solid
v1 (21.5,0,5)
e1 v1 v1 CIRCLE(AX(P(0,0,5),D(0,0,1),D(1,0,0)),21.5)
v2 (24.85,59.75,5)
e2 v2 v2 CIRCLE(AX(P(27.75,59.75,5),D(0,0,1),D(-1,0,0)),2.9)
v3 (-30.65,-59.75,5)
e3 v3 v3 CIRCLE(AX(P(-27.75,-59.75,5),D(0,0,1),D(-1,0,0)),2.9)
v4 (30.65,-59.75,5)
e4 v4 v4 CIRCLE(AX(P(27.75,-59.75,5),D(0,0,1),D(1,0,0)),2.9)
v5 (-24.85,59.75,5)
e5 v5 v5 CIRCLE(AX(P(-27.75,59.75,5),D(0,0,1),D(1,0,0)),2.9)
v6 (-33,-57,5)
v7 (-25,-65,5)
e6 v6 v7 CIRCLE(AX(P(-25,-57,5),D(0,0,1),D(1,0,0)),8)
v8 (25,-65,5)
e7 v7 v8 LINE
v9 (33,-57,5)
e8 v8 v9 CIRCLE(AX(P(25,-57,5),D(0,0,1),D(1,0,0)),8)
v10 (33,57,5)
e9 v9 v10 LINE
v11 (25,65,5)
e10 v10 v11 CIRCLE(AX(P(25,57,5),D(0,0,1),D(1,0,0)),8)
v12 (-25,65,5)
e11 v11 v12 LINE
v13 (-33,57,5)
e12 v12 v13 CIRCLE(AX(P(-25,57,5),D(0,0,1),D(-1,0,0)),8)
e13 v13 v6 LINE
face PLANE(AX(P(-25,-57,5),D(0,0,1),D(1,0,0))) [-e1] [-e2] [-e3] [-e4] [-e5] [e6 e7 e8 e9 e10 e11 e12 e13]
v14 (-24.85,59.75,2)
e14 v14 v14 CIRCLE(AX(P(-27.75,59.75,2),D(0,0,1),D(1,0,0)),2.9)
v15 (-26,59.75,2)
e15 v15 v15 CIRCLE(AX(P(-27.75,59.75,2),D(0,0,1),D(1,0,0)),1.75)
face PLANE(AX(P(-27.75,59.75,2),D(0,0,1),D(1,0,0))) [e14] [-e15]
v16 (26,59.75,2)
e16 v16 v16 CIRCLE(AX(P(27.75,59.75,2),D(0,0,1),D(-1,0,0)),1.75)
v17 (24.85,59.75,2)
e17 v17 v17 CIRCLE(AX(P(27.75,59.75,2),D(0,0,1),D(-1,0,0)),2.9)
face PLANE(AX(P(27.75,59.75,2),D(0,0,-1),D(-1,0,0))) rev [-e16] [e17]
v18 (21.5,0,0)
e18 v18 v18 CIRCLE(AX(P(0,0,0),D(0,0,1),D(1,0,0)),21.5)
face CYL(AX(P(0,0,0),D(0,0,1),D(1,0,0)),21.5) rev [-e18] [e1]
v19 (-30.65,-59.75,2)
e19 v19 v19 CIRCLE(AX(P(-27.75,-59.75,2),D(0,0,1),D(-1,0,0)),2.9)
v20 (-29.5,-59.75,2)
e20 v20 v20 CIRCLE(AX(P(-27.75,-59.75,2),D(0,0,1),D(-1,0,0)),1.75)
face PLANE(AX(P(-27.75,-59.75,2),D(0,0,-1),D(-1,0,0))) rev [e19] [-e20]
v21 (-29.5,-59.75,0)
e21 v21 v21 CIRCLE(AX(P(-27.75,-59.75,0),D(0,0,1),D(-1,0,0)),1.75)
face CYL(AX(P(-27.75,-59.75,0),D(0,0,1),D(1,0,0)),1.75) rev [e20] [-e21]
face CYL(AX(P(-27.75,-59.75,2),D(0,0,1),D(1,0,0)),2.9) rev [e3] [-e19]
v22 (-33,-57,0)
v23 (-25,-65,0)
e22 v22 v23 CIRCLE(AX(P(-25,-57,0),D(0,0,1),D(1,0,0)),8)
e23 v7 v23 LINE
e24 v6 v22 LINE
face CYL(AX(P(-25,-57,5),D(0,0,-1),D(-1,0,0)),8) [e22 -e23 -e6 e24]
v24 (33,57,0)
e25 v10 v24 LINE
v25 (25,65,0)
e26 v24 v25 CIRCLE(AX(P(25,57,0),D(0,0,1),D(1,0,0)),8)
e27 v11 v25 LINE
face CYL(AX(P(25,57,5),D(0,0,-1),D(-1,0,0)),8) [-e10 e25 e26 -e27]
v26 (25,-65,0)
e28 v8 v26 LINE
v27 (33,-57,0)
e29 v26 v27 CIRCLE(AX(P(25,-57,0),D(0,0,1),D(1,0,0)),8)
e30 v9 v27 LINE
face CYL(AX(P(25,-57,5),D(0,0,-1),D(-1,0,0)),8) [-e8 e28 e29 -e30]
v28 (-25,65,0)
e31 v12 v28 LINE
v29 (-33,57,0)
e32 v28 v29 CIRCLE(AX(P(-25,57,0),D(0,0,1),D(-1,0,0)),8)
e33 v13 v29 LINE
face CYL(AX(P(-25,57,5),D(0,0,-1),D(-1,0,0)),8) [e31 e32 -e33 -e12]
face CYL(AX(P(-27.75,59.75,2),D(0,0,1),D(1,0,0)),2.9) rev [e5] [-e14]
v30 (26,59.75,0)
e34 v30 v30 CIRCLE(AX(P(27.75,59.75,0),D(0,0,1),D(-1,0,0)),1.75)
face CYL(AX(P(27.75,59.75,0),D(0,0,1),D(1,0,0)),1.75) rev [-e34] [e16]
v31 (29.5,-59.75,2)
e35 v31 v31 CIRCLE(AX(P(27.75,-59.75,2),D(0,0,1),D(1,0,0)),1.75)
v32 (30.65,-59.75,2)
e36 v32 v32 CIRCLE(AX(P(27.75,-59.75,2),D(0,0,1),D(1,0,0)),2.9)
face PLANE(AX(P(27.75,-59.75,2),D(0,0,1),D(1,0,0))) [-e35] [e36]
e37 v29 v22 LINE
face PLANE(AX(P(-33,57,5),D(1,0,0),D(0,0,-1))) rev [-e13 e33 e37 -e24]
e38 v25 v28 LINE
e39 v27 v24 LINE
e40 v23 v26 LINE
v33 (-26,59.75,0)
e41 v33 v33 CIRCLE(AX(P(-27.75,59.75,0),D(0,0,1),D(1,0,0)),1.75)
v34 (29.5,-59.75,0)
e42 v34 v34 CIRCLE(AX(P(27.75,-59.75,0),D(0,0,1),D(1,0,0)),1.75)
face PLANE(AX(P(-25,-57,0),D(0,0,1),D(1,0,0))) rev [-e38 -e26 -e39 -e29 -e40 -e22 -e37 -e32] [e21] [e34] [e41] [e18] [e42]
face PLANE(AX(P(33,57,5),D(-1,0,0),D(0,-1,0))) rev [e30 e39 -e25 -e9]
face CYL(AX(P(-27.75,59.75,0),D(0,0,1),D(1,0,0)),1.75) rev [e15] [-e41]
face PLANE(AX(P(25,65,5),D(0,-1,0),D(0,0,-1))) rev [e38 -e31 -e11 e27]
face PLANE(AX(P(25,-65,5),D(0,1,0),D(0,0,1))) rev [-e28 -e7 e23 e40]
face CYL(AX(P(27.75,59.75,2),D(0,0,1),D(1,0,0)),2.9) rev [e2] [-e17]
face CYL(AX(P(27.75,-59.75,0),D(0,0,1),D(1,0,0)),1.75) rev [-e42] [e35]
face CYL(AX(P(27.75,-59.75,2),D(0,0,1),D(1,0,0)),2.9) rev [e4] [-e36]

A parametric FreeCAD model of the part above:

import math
import FreeCAD as App
import Part
import Sketcher
from FreeCAD import Vector
Q = App.Units.Quantity

doc = App.newDocument("Part")
params = doc.addObject("Spreadsheet::Sheet", "Params")
for row, (alias, value) in enumerate([
    ("sketch1_radius", "8 mm"),
    ("sketch1_width", "50 mm"),
    ("sketch1_height", "114 mm"),
    ("pad1_length", "5 mm"),
    ("sketch2_diameter", "43 mm"),
    ("sketch3_diameter", "5.8 mm"),
    ("pocket2_length", "3 mm"),
    ("sketch4_diameter", "3.5 mm"),
], start=1):
    params.set(f"A{row}", alias)
    params.set(f"B{row}", "=" + value)
    params.setAlias(f"B{row}", alias)

body = doc.addObject("PartDesign::Body", "Body")

# Sketch on XY plane
sketch1 = body.newObject("Sketcher::SketchObject", "Sketch")
sketch1.AttachmentSupport = (doc.getObject("XY_Plane"), [""])
sketch1.MapMode = "FlatFace"
sketch1.addGeometry([
    Part.LineSegment(Vector(25, 65, 0), Vector(-25, 65, 0)),  # 0
    Part.ArcOfCircle(Part.Circle(Vector(-25, 57, 0), Vector(0, 0, 1), 8), math.radians(90), math.radians(180)),  # 1
    Part.LineSegment(Vector(-33, 57, 0), Vector(-33, -57, 0)),  # 2
    Part.ArcOfCircle(Part.Circle(Vector(-25, -57, 0), Vector(0, 0, 1), 8), math.radians(-180), math.radians(-90)),  # 3
    Part.LineSegment(Vector(-25, -65, 0), Vector(25, -65, 0)),  # 4
    Part.ArcOfCircle(Part.Circle(Vector(25, -57, 0), Vector(0, 0, 1), 8), math.radians(-90), math.radians(0)),  # 5
    Part.LineSegment(Vector(33, -57, 0), Vector(33, 57, 0)),  # 6
    Part.ArcOfCircle(Part.Circle(Vector(25, 57, 0), Vector(0, 0, 1), 8), math.radians(0), math.radians(90)),  # 7
], False)
sketch1.addConstraint([
    Sketcher.Constraint("Tangent", 0, 2, 1, 1),
    Sketcher.Constraint("Tangent", 1, 2, 2, 1),
    Sketcher.Constraint("Tangent", 2, 2, 3, 1),
    Sketcher.Constraint("Tangent", 3, 2, 4, 1),
    Sketcher.Constraint("Tangent", 4, 2, 5, 1),
    Sketcher.Constraint("Tangent", 5, 2, 6, 1),
    Sketcher.Constraint("Tangent", 6, 2, 7, 1),
    Sketcher.Constraint("Tangent", 7, 2, 0, 1),
    Sketcher.Constraint("Horizontal", 0),
    Sketcher.Constraint("Vertical", 2),
    Sketcher.Constraint("Horizontal", 4),
    Sketcher.Constraint("Vertical", 6),
    Sketcher.Constraint("Equal", 1, 3),
    Sketcher.Constraint("Equal", 3, 5),
    Sketcher.Constraint("Equal", 5, 7),
    Sketcher.Constraint("Symmetric", 1, 3, 5, 3, -1, 1),
    Sketcher.Constraint("Radius", 1, Q("8 mm")),
    Sketcher.Constraint("DistanceX", 0, 2, 0, 1, Q("50 mm")),
    Sketcher.Constraint("DistanceY", 2, 2, 2, 1, Q("114 mm")),
])
sketch1.setExpression("Constraints[16]", "Params.sketch1_radius")
sketch1.setExpression("Constraints[17]", "Params.sketch1_width")
sketch1.setExpression("Constraints[18]", "Params.sketch1_height")
pad1 = body.newObject("PartDesign::Pad", "Pad")
pad1.Profile = sketch1
pad1.setExpression("Length", "Params.pad1_length")

# Sketch on XY plane
sketch2 = body.newObject("Sketcher::SketchObject", "Sketch001")
sketch2.AttachmentSupport = (doc.getObject("XY_Plane"), [""])
sketch2.MapMode = "FlatFace"
sketch2.AttachmentOffset = App.Placement(Vector(0, 0, 5), App.Rotation())
sketch2.addGeometry(Part.Circle(Vector(0, 0, 0), Vector(0, 0, 1), 22), False)
sketch2.addConstraint([
    Sketcher.Constraint("Coincident", 0, 3, -1, 1),
    Sketcher.Constraint("Diameter", 0, Q("43 mm")),
])
sketch2.setExpression("Constraints[1]", "Params.sketch2_diameter")
pocket1 = body.newObject("PartDesign::Pocket", "Pocket")
pocket1.Profile = sketch2
pocket1.Type = "ThroughAll"

# Sketch on XY plane
sketch3 = body.newObject("Sketcher::SketchObject", "Sketch002")
sketch3.AttachmentSupport = (doc.getObject("XY_Plane"), [""])
sketch3.MapMode = "FlatFace"
sketch3.AttachmentOffset = App.Placement(Vector(0, 0, 5), App.Rotation())
sketch3.addGeometry([
    Part.Circle(Vector(-27.8, 59.8, 0), Vector(0, 0, 1), 2.9),
    Part.Circle(Vector(27.8, 59.8, 0), Vector(0, 0, 1), 2.9),
    Part.Circle(Vector(-27.8, -59.8, 0), Vector(0, 0, 1), 2.9),
    Part.Circle(Vector(27.8, -59.8, 0), Vector(0, 0, 1), 2.9),
], False)
sketch3.addConstraint([
    Sketcher.Constraint("Equal", 0, 1),
    Sketcher.Constraint("Equal", 1, 2),
    Sketcher.Constraint("Equal", 2, 3),
    Sketcher.Constraint("Symmetric", 1, 3, 2, 3, -1, 1),
    Sketcher.Constraint("Symmetric", 0, 3, 3, 3, -1, 1),
    Sketcher.Constraint("Symmetric", 0, 3, 1, 3, -2),
    Sketcher.Constraint("Diameter", 0, Q("5.8 mm")),
    Sketcher.Constraint("DistanceX", 0, 3, 1, 3, Q("55.5 mm")),
    Sketcher.Constraint("DistanceY", 2, 3, 0, 3, Q("119.5 mm")),
])
sketch3.setExpression("Constraints[6]", "Params.sketch3_diameter")
pocket2 = body.newObject("PartDesign::Pocket", "Pocket001")
pocket2.Profile = sketch3
pocket2.setExpression("Length", "Params.pocket2_length")

# Sketch on XY plane
sketch4 = body.newObject("Sketcher::SketchObject", "Sketch003")
sketch4.AttachmentSupport = (doc.getObject("XY_Plane"), [""])
sketch4.MapMode = "FlatFace"
sketch4.AttachmentOffset = App.Placement(Vector(0, 0, 2), App.Rotation())
sketch4.addGeometry([
    Part.Circle(Vector(-27.8, 59.8, 0), Vector(0, 0, 1), 1.8),
    Part.Circle(Vector(27.8, 59.8, 0), Vector(0, 0, 1), 1.8),
    Part.Circle(Vector(27.8, -59.8, 0), Vector(0, 0, 1), 1.8),
    Part.Circle(Vector(-27.8, -59.8, 0), Vector(0, 0, 1), 1.8),
], False)
sketch4.addConstraint([
    Sketcher.Constraint("Equal", 0, 1),
    Sketcher.Constraint("Equal", 1, 2),
    Sketcher.Constraint("Equal", 2, 3),
    Sketcher.Constraint("Symmetric", 0, 3, 2, 3, -1, 1),
    Sketcher.Constraint("Symmetric", 1, 3, 3, 3, -1, 1),
    Sketcher.Constraint("Symmetric", 0, 3, 1, 3, -2),
    Sketcher.Constraint("Diameter", 0, Q("3.5 mm")),
    Sketcher.Constraint("DistanceX", 0, 3, 1, 3, Q("55.5 mm")),
    Sketcher.Constraint("DistanceY", 2, 3, 1, 3, Q("119.5 mm")),
])
sketch4.setExpression("Constraints[6]", "Params.sketch4_diameter")
pocket3 = body.newObject("PartDesign::Pocket", "Pocket002")
pocket3.Profile = sketch4
pocket3.Type = "ThroughAll"

doc.recompute()
